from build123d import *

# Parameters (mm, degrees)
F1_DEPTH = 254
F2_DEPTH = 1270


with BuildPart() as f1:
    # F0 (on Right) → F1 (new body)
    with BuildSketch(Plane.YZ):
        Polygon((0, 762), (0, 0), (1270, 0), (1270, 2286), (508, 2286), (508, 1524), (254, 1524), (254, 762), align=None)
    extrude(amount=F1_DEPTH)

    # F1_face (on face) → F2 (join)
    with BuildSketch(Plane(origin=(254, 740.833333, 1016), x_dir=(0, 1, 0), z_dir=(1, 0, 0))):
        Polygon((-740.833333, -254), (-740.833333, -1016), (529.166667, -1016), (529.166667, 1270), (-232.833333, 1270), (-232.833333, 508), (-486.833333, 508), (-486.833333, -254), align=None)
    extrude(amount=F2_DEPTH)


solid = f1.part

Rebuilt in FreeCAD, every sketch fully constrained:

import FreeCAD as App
import Part
import Sketcher

V = App.Vector
Q = App.Units.Quantity


def add_polygon(sketch, points):
    """Adds a closed chain of lines whose ends are joined by coincident constraints."""
    first, n = sketch.GeometryCount, len(points)
    for a, b in zip(points, points[1:] + points[:1]):
        sketch.addGeometry(Part.LineSegment(App.Vector(*a, 0), App.Vector(*b, 0)), False)
    for i in range(n):
        sketch.addConstraint(Sketcher.Constraint("Coincident", first + i, 2, first + (i + 1) % n, 1))

doc = App.newDocument("Part")
params = doc.addObject("Spreadsheet::Sheet", "Params")
for row, (alias, value) in enumerate([
    ("sketch1_width", "50 in"),
    ("sketch1_width2", "30 in"),
    ("pad1_length", "10 in"),
    ("sketch2_width", "50 in"),
    ("sketch2_width2", "30 in"),
    ("pad2_length", "50 in"),
], start=1):
    params.set(f"A{row}", alias)
    params.set(f"B{row}", "=" + value)
    params.setAlias(f"B{row}", alias)

body = doc.addObject("PartDesign::Body", "Body")

# Sketch on YZ plane
sketch1 = body.newObject("Sketcher::SketchObject", "Sketch")
sketch1.AttachmentSupport = (doc.getObject("YZ_Plane"), [""])
sketch1.MapMode = "FlatFace"
add_polygon(sketch1, [(0, 762), (0, 0), (1270, 0), (1270, 2286), (508, 2286), (508, 1524), (254, 1524), (254, 762)])  # lines 0-7
sketch1.addConstraint([
    Sketcher.Constraint("Vertical", 0),
    Sketcher.Constraint("Horizontal", 1),
    Sketcher.Constraint("Vertical", 2),
    Sketcher.Constraint("Horizontal", 3),
    Sketcher.Constraint("Vertical", 4),
    Sketcher.Constraint("Horizontal", 5),
    Sketcher.Constraint("Vertical", 6),
    Sketcher.Constraint("Horizontal", 7),
    Sketcher.Constraint("Coincident", 0, 2, -1, 1),
    Sketcher.Constraint("Equal", 5, 7),
    Sketcher.Constraint("Equal", 3, 0),
    Sketcher.Constraint("Equal", 0, 4),
    Sketcher.Constraint("Equal", 4, 6),
    Sketcher.Constraint("DistanceX", 1, 1, 1, 2, Q("50 in")),
    Sketcher.Constraint("DistanceX", 3, 2, 3, 1, Q("30 in")),
])
sketch1.setExpression("Constraints[21]", "Params.sketch1_width")
sketch1.setExpression("Constraints[22]", "Params.sketch1_width2")
pad1 = body.newObject("PartDesign::Pad", "Pad")
pad1.Profile = sketch1
pad1.setExpression("Length", "Params.pad1_length")

# Sketch on YZ plane
sketch2 = body.newObject("Sketcher::SketchObject", "Sketch001")
sketch2.AttachmentSupport = (doc.getObject("YZ_Plane"), [""])
sketch2.MapMode = "FlatFace"
sketch2.AttachmentOffset = App.Placement(V(0, 0, 10 * 25.4), App.Rotation())
add_polygon(sketch2, [(0, 762), (0, 0), (1270, 0), (1270, 2286), (508, 2286), (508, 1524), (254, 1524), (254, 762)])  # lines 0-7
sketch2.addConstraint([
    Sketcher.Constraint("Vertical", 0),
    Sketcher.Constraint("Horizontal", 1),
    Sketcher.Constraint("Vertical", 2),
    Sketcher.Constraint("Horizontal", 3),
    Sketcher.Constraint("Vertical", 4),
    Sketcher.Constraint("Horizontal", 5),
    Sketcher.Constraint("Vertical", 6),
    Sketcher.Constraint("Horizontal", 7),
    Sketcher.Constraint("Coincident", 0, 2, -1, 1),
    Sketcher.Constraint("Equal", 5, 7),
    Sketcher.Constraint("Equal", 3, 0),
    Sketcher.Constraint("Equal", 0, 4),
    Sketcher.Constraint("Equal", 4, 6),
    Sketcher.Constraint("DistanceX", 1, 1, 1, 2, Q("50 in")),
    Sketcher.Constraint("DistanceX", 3, 2, 3, 1, Q("30 in")),
])
sketch2.setExpression("Constraints[21]", "Params.sketch2_width")
sketch2.setExpression("Constraints[22]", "Params.sketch2_width2")
pad2 = body.newObject("PartDesign::Pad", "Pad001")
pad2.Profile = sketch2
pad2.setExpression("Length", "Params.pad2_length")

doc.recompute()
